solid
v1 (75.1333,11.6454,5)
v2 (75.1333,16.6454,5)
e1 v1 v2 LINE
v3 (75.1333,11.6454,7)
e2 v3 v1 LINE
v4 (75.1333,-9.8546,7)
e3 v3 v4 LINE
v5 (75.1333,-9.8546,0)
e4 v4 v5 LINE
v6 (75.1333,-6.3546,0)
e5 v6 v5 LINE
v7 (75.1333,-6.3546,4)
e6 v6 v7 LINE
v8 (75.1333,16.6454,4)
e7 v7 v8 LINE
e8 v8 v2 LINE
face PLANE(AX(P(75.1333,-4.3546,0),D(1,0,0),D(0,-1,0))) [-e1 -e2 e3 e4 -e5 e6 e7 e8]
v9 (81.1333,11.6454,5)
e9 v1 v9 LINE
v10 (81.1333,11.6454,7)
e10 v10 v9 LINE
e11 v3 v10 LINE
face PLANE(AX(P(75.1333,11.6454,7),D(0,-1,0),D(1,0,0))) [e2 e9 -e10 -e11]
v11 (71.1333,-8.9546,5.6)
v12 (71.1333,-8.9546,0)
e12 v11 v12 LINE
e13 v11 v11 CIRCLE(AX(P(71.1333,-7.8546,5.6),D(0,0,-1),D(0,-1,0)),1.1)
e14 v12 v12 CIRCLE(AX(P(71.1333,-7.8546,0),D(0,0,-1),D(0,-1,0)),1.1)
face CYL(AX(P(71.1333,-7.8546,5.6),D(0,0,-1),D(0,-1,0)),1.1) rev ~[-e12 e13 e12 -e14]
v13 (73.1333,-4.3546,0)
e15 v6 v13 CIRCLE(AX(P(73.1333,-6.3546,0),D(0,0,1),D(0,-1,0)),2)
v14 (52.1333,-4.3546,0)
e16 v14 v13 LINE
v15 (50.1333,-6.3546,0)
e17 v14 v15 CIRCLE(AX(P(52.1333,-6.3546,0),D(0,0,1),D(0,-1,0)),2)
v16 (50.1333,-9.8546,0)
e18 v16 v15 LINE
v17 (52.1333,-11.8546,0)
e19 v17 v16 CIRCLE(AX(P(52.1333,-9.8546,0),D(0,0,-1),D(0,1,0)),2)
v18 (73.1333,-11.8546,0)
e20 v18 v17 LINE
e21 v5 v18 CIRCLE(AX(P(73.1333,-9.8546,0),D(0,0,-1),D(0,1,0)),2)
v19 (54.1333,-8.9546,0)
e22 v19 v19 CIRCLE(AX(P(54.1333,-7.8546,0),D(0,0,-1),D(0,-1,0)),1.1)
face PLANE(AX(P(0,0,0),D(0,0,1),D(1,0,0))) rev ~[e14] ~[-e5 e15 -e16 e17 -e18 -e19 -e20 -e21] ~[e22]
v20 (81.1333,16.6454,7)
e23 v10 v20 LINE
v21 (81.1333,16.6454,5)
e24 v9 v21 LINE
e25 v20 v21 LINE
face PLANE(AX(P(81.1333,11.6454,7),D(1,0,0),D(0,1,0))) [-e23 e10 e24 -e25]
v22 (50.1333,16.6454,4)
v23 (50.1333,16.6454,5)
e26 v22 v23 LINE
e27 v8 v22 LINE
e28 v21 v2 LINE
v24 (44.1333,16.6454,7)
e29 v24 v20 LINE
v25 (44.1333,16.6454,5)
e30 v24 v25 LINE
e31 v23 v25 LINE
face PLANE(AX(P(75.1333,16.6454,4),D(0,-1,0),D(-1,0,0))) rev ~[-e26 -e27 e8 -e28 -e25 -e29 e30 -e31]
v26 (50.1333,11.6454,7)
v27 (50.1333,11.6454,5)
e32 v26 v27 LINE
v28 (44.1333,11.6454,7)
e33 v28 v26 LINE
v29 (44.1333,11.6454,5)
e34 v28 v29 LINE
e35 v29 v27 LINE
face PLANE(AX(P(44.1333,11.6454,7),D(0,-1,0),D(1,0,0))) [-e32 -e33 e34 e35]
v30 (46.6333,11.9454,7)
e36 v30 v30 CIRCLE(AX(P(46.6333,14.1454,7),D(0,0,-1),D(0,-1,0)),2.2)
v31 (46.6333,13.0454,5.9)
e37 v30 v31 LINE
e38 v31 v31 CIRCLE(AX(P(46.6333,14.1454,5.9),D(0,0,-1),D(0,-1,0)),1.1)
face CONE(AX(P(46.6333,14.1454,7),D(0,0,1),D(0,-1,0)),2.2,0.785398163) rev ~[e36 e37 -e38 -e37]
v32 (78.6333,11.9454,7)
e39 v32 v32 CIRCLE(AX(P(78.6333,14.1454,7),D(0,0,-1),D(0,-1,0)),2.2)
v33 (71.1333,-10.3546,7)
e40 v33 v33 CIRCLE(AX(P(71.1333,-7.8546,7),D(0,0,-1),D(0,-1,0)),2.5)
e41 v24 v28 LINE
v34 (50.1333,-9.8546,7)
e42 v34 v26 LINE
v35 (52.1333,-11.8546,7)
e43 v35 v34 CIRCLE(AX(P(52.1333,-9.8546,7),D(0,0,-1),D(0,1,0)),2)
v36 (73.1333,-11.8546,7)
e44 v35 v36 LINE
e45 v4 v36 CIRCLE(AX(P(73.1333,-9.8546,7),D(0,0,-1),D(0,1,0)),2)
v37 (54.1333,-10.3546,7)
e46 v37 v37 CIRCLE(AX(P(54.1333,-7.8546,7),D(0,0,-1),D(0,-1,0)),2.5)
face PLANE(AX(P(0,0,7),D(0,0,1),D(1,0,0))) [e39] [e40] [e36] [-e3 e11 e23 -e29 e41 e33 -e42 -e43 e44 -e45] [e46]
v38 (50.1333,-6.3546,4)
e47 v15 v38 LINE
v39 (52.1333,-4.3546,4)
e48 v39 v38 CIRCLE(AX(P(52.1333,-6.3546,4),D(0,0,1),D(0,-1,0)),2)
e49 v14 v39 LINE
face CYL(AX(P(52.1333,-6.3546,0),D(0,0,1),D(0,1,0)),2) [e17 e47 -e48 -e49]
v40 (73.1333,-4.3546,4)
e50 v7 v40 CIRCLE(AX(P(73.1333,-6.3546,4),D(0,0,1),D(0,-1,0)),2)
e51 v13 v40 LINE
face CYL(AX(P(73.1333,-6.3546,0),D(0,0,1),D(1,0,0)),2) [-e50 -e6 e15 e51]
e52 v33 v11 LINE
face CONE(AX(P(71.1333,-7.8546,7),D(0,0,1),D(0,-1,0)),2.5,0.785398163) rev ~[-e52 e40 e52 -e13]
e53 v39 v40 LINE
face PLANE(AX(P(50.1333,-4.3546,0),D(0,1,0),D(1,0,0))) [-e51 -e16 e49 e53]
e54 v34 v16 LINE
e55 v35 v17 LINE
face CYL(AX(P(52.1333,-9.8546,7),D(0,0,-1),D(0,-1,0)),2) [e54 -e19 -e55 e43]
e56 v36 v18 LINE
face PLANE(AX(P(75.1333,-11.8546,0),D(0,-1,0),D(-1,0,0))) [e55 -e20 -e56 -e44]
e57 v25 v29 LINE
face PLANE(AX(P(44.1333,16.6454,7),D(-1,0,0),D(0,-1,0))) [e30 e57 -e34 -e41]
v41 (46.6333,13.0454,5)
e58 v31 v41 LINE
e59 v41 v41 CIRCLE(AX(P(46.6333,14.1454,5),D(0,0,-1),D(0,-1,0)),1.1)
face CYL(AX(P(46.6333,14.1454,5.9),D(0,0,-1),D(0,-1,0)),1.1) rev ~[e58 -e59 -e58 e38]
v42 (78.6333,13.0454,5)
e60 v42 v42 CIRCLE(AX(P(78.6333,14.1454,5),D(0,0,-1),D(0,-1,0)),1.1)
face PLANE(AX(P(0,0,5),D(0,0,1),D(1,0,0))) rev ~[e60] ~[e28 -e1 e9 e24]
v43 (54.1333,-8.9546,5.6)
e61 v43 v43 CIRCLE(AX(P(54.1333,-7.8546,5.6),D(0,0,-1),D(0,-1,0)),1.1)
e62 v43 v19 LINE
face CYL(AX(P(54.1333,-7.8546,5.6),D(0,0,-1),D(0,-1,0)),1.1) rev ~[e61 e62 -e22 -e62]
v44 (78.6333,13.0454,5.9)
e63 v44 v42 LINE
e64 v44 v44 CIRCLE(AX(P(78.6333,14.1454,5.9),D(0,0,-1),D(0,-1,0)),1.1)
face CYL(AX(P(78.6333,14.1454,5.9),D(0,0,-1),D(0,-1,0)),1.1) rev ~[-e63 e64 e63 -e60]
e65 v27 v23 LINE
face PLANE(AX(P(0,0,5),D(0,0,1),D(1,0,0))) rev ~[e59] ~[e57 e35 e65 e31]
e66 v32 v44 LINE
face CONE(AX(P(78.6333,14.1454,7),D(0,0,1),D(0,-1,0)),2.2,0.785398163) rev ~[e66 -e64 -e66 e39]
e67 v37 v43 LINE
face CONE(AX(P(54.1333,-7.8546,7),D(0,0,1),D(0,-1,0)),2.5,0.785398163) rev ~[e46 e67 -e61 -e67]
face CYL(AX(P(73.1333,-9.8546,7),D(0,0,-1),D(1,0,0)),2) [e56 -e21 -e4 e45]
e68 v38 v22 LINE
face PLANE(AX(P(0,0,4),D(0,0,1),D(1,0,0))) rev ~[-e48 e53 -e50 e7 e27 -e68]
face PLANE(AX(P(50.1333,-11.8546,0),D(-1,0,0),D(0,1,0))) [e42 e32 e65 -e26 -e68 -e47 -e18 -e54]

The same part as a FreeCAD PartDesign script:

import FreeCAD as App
import Part
import Sketcher
from FreeCAD import Vector
Q = App.Units.Quantity


def edges_at(feature, points):
    """Names of the edges that pass closest to the given points."""
    edges = feature.Shape.Edges
    near = lambda p: min(range(len(edges)), key=lambda i: edges[i].distToShape(Part.Vertex(*p))[0])
    return sorted({f"Edge{near(p) + 1}" for p in points})


def add_polygon(sketch, points):
    """Adds a closed chain of lines whose ends are joined by coincident constraints."""
    first, n = sketch.GeometryCount, len(points)
    for a, b in zip(points, points[1:] + points[:1]):
        sketch.addGeometry(Part.LineSegment(App.Vector(*a, 0), App.Vector(*b, 0)), False)
    for i in range(n):
        sketch.addConstraint(Sketcher.Constraint("Coincident", first + i, 2, first + (i + 1) % n, 1))

doc = App.newDocument("Part")
params = doc.addObject("Spreadsheet::Sheet", "Params")
for row, (alias, value) in enumerate([
    ("sketch1_width", "25 mm"),
    ("sketch1_height", "7.5 mm"),
    ("pad1_length", "4 mm"),
    ("sketch2_height", "28.5 mm"),
    ("sketch2_width", "25 mm"),
    ("pad2_length", "3 mm"),
    ("sketch3_diameter", "2.2 mm"),
    ("hole_diameter", "2.2 mm"),
    ("hole_csink_diameter", "5 mm"),
    ("fillet_radius", "2 mm"),
    ("sketch4_width", "6 mm"),
    ("sketch4_height", "5 mm"),
    ("pad3_length", "2 mm"),
    ("sketch5_diameter", "2.2 mm"),
    ("hole2_diameter", "2.2 mm"),
    ("hole2_csink_diameter", "4.4 mm"),
], start=1):
    params.set(f"A{row}", alias)
    params.set(f"B{row}", "=" + value)
    params.setAlias(f"B{row}", alias)

body = doc.addObject("PartDesign::Body", "Body")

sketch1 = body.newObject("Sketcher::SketchObject", "Sketch")
sketch1.AttachmentSupport = (doc.getObject("XY_Plane"), [""])
sketch1.MapMode = "FlatFace"
add_polygon(sketch1, [(75, -12), (75, -4), (50, -4), (50, -12)])
sketch1.addConstraint([
    Sketcher.Constraint("Vertical", 0),
    Sketcher.Constraint("Horizontal", 1),
    Sketcher.Constraint("Vertical", 2),
    Sketcher.Constraint("Horizontal", 3),
    Sketcher.Constraint("DistanceX", 1, 2, 1, 1, Q("25 mm")),
    Sketcher.Constraint("DistanceY", 0, 1, 0, 2, Q("7.5 mm")),
    Sketcher.Constraint("DistanceX", -1, 1, 0, 2, Q("75.1333 mm")),
    Sketcher.Constraint("DistanceY", 0, 2, -1, 1, Q("4.3546 mm")),
])
sketch1.setExpression("Constraints[8]", "Params.sketch1_width")
sketch1.setExpression("Constraints[9]", "Params.sketch1_height")
pad1 = body.newObject("PartDesign::Pad", "Pad")
pad1.Profile = sketch1
pad1.setExpression("Length", "Params.pad1_length")

sketch2 = body.newObject("Sketcher::SketchObject", "Sketch001")
sketch2.AttachmentSupport = (doc.getObject("XY_Plane"), [""])
sketch2.MapMode = "FlatFace"
sketch2.AttachmentOffset = App.Placement(Vector(0, 0, 4), App.Rotation())
add_polygon(sketch2, [(75, -12), (75, 17), (50, 17), (50, -12)])
sketch2.addConstraint([
    Sketcher.Constraint("Vertical", 0),
    Sketcher.Constraint("Horizontal", 1),
    Sketcher.Constraint("Vertical", 2),
    Sketcher.Constraint("Horizontal", 3),
    Sketcher.Constraint("DistanceY", 0, 1, 0, 2, Q("28.5 mm")),
    Sketcher.Constraint("DistanceX", 1, 2, 1, 1, Q("25 mm")),
    Sketcher.Constraint("DistanceX", -1, 1, 0, 2, Q("75.1333 mm")),
    Sketcher.Constraint("DistanceY", -1, 1, 0, 2, Q("16.6454 mm")),
])
sketch2.setExpression("Constraints[8]", "Params.sketch2_height")
sketch2.setExpression("Constraints[9]", "Params.sketch2_width")
pad2 = body.newObject("PartDesign::Pad", "Pad001")
pad2.Profile = sketch2
pad2.setExpression("Length", "Params.pad2_length")

sketch3 = body.newObject("Sketcher::SketchObject", "Sketch002")
sketch3.AttachmentSupport = (doc.getObject("XY_Plane"), [""])
sketch3.MapMode = "FlatFace"
sketch3.AttachmentOffset = App.Placement(Vector(0, 0, 7), App.Rotation())
sketch3.addGeometry([
    Part.Circle(Vector(54.1, -7.9, 0), Vector(0, 0, 1), 1.1),
    Part.Circle(Vector(71.1, -7.9, 0), Vector(0, 0, 1), 1.1),
], False)
sketch3.addConstraint([
    Sketcher.Constraint("Equal", 0, 1),
    Sketcher.Constraint("Horizontal", 0, 3, 1, 3),
    Sketcher.Constraint("Diameter", 0, Q("2.2 mm")),
    Sketcher.Constraint("DistanceX", 0, 3, 1, 3, Q("17 mm")),
    Sketcher.Constraint("DistanceX", -1, 1, 0, 3, Q("54.1333 mm")),
    Sketcher.Constraint("DistanceY", 0, 3, -1, 1, Q("7.8546 mm")),
])
sketch3.setExpression("Constraints[2]", "Params.sketch3_diameter")
doc.recompute()
hole = body.newObject("PartDesign::Hole", "Hole")
hole.Profile = sketch3
hole.ThreadType = "None"
hole.setExpression("Diameter", "Params.hole_diameter")
hole.DepthType = "ThroughAll"
hole.HoleCutType = "Countersink"
hole.setExpression("HoleCutDiameter", "Params.hole_csink_diameter")
hole.HoleCutCountersinkAngle = 90
doc.recompute()

fillet = body.newObject("PartDesign::Fillet", "Fillet")
fillet.Base = (hole, edges_at(hole, [
    (50.133, -11.855, 3.5),
    (75.133, -11.855, 3.5),
    (75.133, -4.355, 2),
    (50.133, -4.355, 2),
]))
fillet.setExpression("Radius", "Params.fillet_radius")

sketch4 = body.newObject("Sketcher::SketchObject", "Sketch003")
sketch4.AttachmentSupport = (doc.getObject("XY_Plane"), [""])
sketch4.MapMode = "FlatFace"
sketch4.AttachmentOffset = App.Placement(Vector(0, 0, 7), App.Rotation())
add_polygon(sketch4, [(50.1, 11.6), (50.1, 16.6), (44.1, 16.6), (44.1, 11.6)])
add_polygon(sketch4, [(75.1, 16.6), (75.1, 11.6), (81.1, 11.6), (81.1, 16.6)])
sketch4.addConstraint([
    Sketcher.Constraint("Vertical", 0),
    Sketcher.Constraint("Horizontal", 1),
    Sketcher.Constraint("Vertical", 2),
    Sketcher.Constraint("Horizontal", 3),
    Sketcher.Constraint("Vertical", 4),
    Sketcher.Constraint("Horizontal", 5),
    Sketcher.Constraint("Vertical", 6),
    Sketcher.Constraint("Horizontal", 7),
    Sketcher.Constraint("Horizontal", 3, 2, 4, 2),
    Sketcher.Constraint("Horizontal", 1, 2, 6, 2),
    Sketcher.Constraint("Equal", 3, 5),
    Sketcher.Constraint("DistanceX", 1, 2, 1, 1, Q("6 mm")),
    Sketcher.Constraint("DistanceY", 0, 1, 0, 2, Q("5 mm")),
    Sketcher.Constraint("DistanceX", 3, 2, 4, 2, Q("25 mm")),
    Sketcher.Constraint("DistanceX", -1, 1, 0, 2, Q("50.1333 mm")),
    Sketcher.Constraint("DistanceY", -1, 1, 0, 2, Q("16.6454 mm")),
])
sketch4.setExpression("Constraints[19]", "Params.sketch4_width")
sketch4.setExpression("Constraints[20]", "Params.sketch4_height")
pad3 = body.newObject("PartDesign::Pad", "Pad002")
pad3.Profile = sketch4
pad3.setExpression("Length", "Params.pad3_length")
pad3.Reversed = True

sketch5 = body.newObject("Sketcher::SketchObject", "Sketch004")
sketch5.AttachmentSupport = (doc.getObject("XY_Plane"), [""])
sketch5.MapMode = "FlatFace"
sketch5.AttachmentOffset = App.Placement(Vector(0, 0, 7), App.Rotation())
sketch5.addGeometry([
    Part.Circle(Vector(78.6, 14.1, 0), Vector(0, 0, 1), 1.1),
    Part.Circle(Vector(46.6, 14.1, 0), Vector(0, 0, 1), 1.1),
], False)
sketch5.addConstraint([
    Sketcher.Constraint("Equal", 0, 1),
    Sketcher.Constraint("Horizontal", 0, 3, 1, 3),
    Sketcher.Constraint("Diameter", 0, Q("2.2 mm")),
    Sketcher.Constraint("DistanceX", 1, 3, 0, 3, Q("32 mm")),
    Sketcher.Constraint("DistanceX", -1, 1, 0, 3, Q("78.6333 mm")),
    Sketcher.Constraint("DistanceY", -1, 1, 0, 3, Q("14.1454 mm")),
])
sketch5.setExpression("Constraints[2]", "Params.sketch5_diameter")
doc.recompute()
hole2 = body.newObject("PartDesign::Hole", "Hole001")
hole2.Profile = sketch5
hole2.ThreadType = "None"
hole2.setExpression("Diameter", "Params.hole2_diameter")
hole2.DepthType = "ThroughAll"
hole2.HoleCutType = "Countersink"
hole2.setExpression("HoleCutDiameter", "Params.hole2_csink_diameter")
hole2.HoleCutCountersinkAngle = 90

doc.recompute()
